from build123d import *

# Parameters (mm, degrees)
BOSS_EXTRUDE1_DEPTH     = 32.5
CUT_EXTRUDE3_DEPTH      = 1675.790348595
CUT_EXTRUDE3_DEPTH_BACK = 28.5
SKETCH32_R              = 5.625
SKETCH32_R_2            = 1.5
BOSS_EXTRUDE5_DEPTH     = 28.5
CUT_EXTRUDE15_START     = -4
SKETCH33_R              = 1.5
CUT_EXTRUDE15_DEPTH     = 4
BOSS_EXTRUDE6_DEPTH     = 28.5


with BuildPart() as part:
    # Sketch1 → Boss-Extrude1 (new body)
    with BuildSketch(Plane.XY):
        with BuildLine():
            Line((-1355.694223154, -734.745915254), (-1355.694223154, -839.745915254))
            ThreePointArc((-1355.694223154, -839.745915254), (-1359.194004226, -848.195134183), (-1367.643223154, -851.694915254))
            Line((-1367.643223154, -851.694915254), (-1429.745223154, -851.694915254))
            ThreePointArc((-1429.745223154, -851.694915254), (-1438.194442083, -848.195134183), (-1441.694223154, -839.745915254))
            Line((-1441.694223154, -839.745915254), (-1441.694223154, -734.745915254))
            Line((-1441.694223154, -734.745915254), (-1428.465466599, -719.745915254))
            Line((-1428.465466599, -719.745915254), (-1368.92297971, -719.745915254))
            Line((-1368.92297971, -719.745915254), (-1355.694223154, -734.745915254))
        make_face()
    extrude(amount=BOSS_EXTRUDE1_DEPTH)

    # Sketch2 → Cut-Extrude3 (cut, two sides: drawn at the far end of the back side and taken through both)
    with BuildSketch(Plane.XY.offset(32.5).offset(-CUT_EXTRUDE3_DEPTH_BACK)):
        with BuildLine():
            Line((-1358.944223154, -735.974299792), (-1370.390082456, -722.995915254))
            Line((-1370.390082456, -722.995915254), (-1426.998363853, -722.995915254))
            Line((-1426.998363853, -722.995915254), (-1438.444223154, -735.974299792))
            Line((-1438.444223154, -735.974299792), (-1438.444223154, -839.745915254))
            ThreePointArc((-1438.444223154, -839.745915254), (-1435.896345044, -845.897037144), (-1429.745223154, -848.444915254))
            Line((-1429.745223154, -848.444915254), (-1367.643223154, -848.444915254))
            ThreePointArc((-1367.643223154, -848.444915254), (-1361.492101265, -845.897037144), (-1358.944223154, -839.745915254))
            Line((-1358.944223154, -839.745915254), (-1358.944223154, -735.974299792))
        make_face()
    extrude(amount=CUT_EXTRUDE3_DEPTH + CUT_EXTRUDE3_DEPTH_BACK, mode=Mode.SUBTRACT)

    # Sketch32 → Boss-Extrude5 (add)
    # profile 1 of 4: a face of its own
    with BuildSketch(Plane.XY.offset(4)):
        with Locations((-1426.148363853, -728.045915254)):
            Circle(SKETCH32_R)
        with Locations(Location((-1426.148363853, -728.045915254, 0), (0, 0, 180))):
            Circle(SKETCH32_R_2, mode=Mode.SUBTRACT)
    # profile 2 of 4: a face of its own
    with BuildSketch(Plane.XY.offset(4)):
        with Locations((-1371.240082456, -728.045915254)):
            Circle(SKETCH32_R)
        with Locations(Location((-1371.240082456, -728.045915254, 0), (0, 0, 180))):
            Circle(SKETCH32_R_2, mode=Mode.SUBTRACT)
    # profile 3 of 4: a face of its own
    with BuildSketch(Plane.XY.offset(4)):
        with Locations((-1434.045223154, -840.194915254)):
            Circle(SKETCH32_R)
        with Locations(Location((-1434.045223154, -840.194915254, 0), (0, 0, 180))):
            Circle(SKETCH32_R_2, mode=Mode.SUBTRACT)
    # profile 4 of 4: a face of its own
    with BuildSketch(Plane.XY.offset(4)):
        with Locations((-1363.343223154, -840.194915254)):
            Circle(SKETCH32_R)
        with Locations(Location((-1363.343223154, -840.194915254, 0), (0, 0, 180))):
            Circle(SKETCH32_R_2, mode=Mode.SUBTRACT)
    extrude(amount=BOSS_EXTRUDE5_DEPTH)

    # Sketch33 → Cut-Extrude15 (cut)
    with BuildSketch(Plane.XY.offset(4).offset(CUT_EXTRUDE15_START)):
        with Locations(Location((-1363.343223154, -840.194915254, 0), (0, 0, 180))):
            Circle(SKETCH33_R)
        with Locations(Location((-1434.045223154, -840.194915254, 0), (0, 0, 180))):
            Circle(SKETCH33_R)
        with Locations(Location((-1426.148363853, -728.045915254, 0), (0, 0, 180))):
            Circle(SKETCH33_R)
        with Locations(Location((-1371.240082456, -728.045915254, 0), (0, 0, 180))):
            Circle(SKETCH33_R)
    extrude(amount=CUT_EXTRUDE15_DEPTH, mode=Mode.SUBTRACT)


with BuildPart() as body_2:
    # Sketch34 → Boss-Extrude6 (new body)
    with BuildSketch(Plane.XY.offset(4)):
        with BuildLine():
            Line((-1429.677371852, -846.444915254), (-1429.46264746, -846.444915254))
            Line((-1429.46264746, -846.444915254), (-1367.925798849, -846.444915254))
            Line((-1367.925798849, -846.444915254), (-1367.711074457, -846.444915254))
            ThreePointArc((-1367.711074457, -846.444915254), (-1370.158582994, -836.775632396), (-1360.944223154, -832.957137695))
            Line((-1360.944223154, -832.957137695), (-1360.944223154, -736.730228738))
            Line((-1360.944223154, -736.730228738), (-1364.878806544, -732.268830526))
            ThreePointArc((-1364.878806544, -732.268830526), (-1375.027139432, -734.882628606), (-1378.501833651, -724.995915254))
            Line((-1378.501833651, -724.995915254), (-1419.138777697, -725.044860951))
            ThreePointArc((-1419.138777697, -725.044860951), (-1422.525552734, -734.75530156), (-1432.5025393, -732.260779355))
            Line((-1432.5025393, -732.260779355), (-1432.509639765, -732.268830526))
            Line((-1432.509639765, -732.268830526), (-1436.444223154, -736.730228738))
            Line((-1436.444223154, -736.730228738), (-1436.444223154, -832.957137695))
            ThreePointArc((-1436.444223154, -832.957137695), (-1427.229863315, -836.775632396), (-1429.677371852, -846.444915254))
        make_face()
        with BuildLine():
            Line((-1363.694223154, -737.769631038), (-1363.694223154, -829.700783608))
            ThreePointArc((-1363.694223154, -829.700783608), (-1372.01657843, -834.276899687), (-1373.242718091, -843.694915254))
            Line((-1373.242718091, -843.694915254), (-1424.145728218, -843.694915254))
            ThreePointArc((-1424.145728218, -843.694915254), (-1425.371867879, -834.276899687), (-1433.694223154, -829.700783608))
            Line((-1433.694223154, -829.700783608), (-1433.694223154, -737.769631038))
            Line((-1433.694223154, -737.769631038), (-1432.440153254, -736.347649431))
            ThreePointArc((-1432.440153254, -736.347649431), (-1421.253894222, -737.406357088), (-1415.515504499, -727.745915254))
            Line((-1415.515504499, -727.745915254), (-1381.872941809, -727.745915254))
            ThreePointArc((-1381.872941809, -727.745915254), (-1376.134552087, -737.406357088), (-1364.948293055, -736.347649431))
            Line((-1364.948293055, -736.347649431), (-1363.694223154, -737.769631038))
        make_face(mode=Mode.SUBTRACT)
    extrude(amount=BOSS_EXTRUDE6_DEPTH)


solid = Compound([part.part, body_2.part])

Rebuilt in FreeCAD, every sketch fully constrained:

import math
import FreeCAD as App
import Part
import Sketcher
from FreeCAD import Vector
Q = App.Units.Quantity

doc = App.newDocument("Part")
body = doc.addObject("PartDesign::Body", "Body")

# Sketch on XY plane
sketch1 = body.newObject("Sketcher::SketchObject", "Sketch")
sketch1.AttachmentSupport = (doc.getObject("XY_Plane"), [""])
sketch1.MapMode = "FlatFace"
sketch1.addGeometry(Part.LineSegment(Vector(-1355.694223, -839.745915, 0), Vector(-1355.694223, -734.745915, 0)), False)
sketch1.addGeometry(Part.LineSegment(Vector(-1355.694223, -734.745915, 0), Vector(-1368.92298, -719.745915, 0)), False)
sketch1.addGeometry(Part.LineSegment(Vector(-1368.92298, -719.745915, 0), Vector(-1428.465467, -719.745915, 0)), False)
sketch1.addGeometry(Part.LineSegment(Vector(-1428.465467, -719.745915, 0), Vector(-1441.694223, -734.745915, 0)), False)
sketch1.addGeometry(Part.LineSegment(Vector(-1441.694223, -734.745915, 0), Vector(-1441.694223, -839.745915, 0)), False)
sketch1.addGeometry(Part.ArcOfCircle(Part.Circle(Vector(-1429.745223, -839.745915, 0), Vector(0, 0, 1), 11.949), math.radians(180), math.radians(270)), False)
sketch1.addGeometry(Part.LineSegment(Vector(-1429.745223, -851.694915, 0), Vector(-1367.643223, -851.694915, 0)), False)
sketch1.addGeometry(Part.ArcOfCircle(Part.Circle(Vector(-1367.643223, -839.745915, 0), Vector(0, 0, 1), 11.949), math.radians(-90), math.radians(0)), False)
sketch1.addConstraint(Sketcher.Constraint("Coincident", 0, 2, 1, 1))
sketch1.addConstraint(Sketcher.Constraint("Coincident", 1, 2, 2, 1))
sketch1.addConstraint(Sketcher.Constraint("Coincident", 2, 2, 3, 1))
sketch1.addConstraint(Sketcher.Constraint("Coincident", 3, 2, 4, 1))
sketch1.addConstraint(Sketcher.Constraint("Tangent", 4, 2, 5, 1))
sketch1.addConstraint(Sketcher.Constraint("Tangent", 5, 2, 6, 1))
sketch1.addConstraint(Sketcher.Constraint("Tangent", 6, 2, 7, 1))
sketch1.addConstraint(Sketcher.Constraint("Tangent", 7, 2, 0, 1))
sketch1.addConstraint(Sketcher.Constraint("Vertical", 0))
sketch1.addConstraint(Sketcher.Constraint("Horizontal", 2))
sketch1.addConstraint(Sketcher.Constraint("Vertical", 4))
sketch1.addConstraint(Sketcher.Constraint("Horizontal", 6))
sketch1.addConstraint(Sketcher.Constraint("Equal", 5, 7))
sketch1.addConstraint(Sketcher.Constraint("Horizontal", 0, 2, 3, 2))
sketch1.addConstraint(Sketcher.Constraint("Equal", 1, 3))
sketch1.addConstraint(Sketcher.Constraint("DistanceY", 0, 1, 0, 2, Q("105 mm")))
sketch1.addConstraint(Sketcher.Constraint("Distance", 1, Q("20 mm")))
sketch1.addConstraint(Sketcher.Constraint("Radius", 5, Q("11.949 mm")))
sketch1.addConstraint(Sketcher.Constraint("DistanceY", 0, 2, 1, 2, Q("15 mm")))
sketch1.addConstraint(Sketcher.Constraint("DistanceX", 3, 2, 0, 2, Q("86 mm")))
sketch1.addConstraint(Sketcher.Constraint("DistanceX", 1, 2, -1, 1, Q("1368.92298 mm")))
sketch1.addConstraint(Sketcher.Constraint("DistanceY", 5, 3, -1, 1, Q("839.745915 mm")))
pad1 = body.newObject("PartDesign::Pad", "Pad")
pad1.Profile = sketch1
pad1.Length = 32.5

# Sketch on XY plane
sketch2 = body.newObject("Sketcher::SketchObject", "Sketch001")
sketch2.AttachmentSupport = (doc.getObject("XY_Plane"), [""])
sketch2.MapMode = "FlatFace"
sketch2.AttachmentOffset = App.Placement(Vector(0, 0, 32.5), App.Rotation())
sketch2.addGeometry(Part.LineSegment(Vector(-1358.944223, -735.9743, 0), Vector(-1370.390082, -722.995915, 0)), False)
sketch2.addGeometry(Part.LineSegment(Vector(-1370.390082, -722.995915, 0), Vector(-1426.998364, -722.995915, 0)), False)
sketch2.addGeometry(Part.LineSegment(Vector(-1426.998364, -722.995915, 0), Vector(-1438.444223, -735.9743, 0)), False)
sketch2.addGeometry(Part.LineSegment(Vector(-1438.444223, -735.9743, 0), Vector(-1438.444223, -839.745915, 0)), False)
sketch2.addGeometry(Part.ArcOfCircle(Part.Circle(Vector(-1429.745223, -839.745915, 0), Vector(0, 0, 1), 8.699), math.radians(180), math.radians(270)), False)
sketch2.addGeometry(Part.LineSegment(Vector(-1429.745223, -848.444915, 0), Vector(-1367.643223, -848.444915, 0)), False)
sketch2.addGeometry(Part.ArcOfCircle(Part.Circle(Vector(-1367.643223, -839.745915, 0), Vector(0, 0, 1), 8.699), math.radians(-90), math.radians(0)), False)
sketch2.addGeometry(Part.LineSegment(Vector(-1358.944223, -839.745915, 0), Vector(-1358.944223, -735.9743, 0)), False)
sketch2.addConstraint(Sketcher.Constraint("Coincident", 0, 2, 1, 1))
sketch2.addConstraint(Sketcher.Constraint("Coincident", 1, 2, 2, 1))
sketch2.addConstraint(Sketcher.Constraint("Coincident", 2, 2, 3, 1))
sketch2.addConstraint(Sketcher.Constraint("Tangent", 3, 2, 4, 1))
sketch2.addConstraint(Sketcher.Constraint("Tangent", 4, 2, 5, 1))
sketch2.addConstraint(Sketcher.Constraint("Tangent", 5, 2, 6, 1))
sketch2.addConstraint(Sketcher.Constraint("Tangent", 6, 2, 7, 1))
sketch2.addConstraint(Sketcher.Constraint("Coincident", 7, 2, 0, 1))
sketch2.addConstraint(Sketcher.Constraint("Horizontal", 1))
sketch2.addConstraint(Sketcher.Constraint("Vertical", 3))
sketch2.addConstraint(Sketcher.Constraint("Horizontal", 5))
sketch2.addConstraint(Sketcher.Constraint("Vertical", 7))
sketch2.addConstraint(Sketcher.Constraint("Equal", 4, 6))
sketch2.addConstraint(Sketcher.Constraint("Horizontal", 2, 2, 7, 2))
sketch2.addConstraint(Sketcher.Constraint("Equal", 0, 2))
sketch2.addConstraint(Sketcher.Constraint("Radius", 4, Q("8.699 mm")))
sketch2.addConstraint(Sketcher.Constraint("DistanceX", 3, 2, 6, 2, Q("79.5 mm")))
sketch2.addConstraint(Sketcher.Constraint("DistanceY", 6, 3, 0, 2, Q("116.75 mm")))
sketch2.addConstraint(Sketcher.Constraint("DistanceX", 1, 2, 1, 1, Q("56.608281 mm")))
sketch2.addConstraint(Sketcher.Constraint("DistanceY", 2, 2, -1, 1, Q("735.9743 mm")))
sketch2.addConstraint(Sketcher.Constraint("DistanceY", 3, 2, 3, 1, Q("103.771615 mm")))
sketch2.addConstraint(Sketcher.Constraint("DistanceX", 4, 3, -1, 1, Q("1429.745223 mm")))
pocket1 = body.newObject("PartDesign::Pocket", "Pocket")
pocket1.Profile = sketch2
pocket1.Type = "TwoLengths"
pocket1.Length = 1675.790349
pocket1.Length2 = 28.5
pocket1.Reversed = True

# Sketch on XY plane
sketch3 = body.newObject("Sketcher::SketchObject", "Sketch002")
sketch3.AttachmentSupport = (doc.getObject("XY_Plane"), [""])
sketch3.MapMode = "FlatFace"
sketch3.AttachmentOffset = App.Placement(Vector(0, 0, 4), App.Rotation())
sketch3.addGeometry(Part.Circle(Vector(-1426.148364, -728.045915, 0), Vector(0, 0, 1), 5.625), False)
sketch3.addGeometry(Part.Circle(Vector(-1426.148364, -728.045915, 0), Vector(0, 0, 1), 1.5), False)
sketch3.addGeometry(Part.Circle(Vector(-1371.240082, -728.045915, 0), Vector(0, 0, 1), 5.625), False)
sketch3.addGeometry(Part.Circle(Vector(-1371.240082, -728.045915, 0), Vector(0, 0, 1), 1.5), False)
sketch3.addGeometry(Part.Circle(Vector(-1434.045223, -840.194915, 0), Vector(0, 0, 1), 5.625), False)
sketch3.addGeometry(Part.Circle(Vector(-1434.045223, -840.194915, 0), Vector(0, 0, 1), 1.5), False)
sketch3.addGeometry(Part.Circle(Vector(-1363.343223, -840.194915, 0), Vector(0, 0, 1), 5.625), False)
sketch3.addGeometry(Part.Circle(Vector(-1363.343223, -840.194915, 0), Vector(0, 0, 1), 1.5), False)
sketch3.addConstraint(Sketcher.Constraint("Coincident", 1, 3, 0, 3))
sketch3.addConstraint(Sketcher.Constraint("Coincident", 3, 3, 2, 3))
sketch3.addConstraint(Sketcher.Constraint("Coincident", 5, 3, 4, 3))
sketch3.addConstraint(Sketcher.Constraint("Coincident", 7, 3, 6, 3))
sketch3.addConstraint(Sketcher.Constraint("Equal", 0, 2))
sketch3.addConstraint(Sketcher.Constraint("Equal", 1, 3))
sketch3.addConstraint(Sketcher.Constraint("Equal", 2, 4))
sketch3.addConstraint(Sketcher.Constraint("Equal", 3, 5))
sketch3.addConstraint(Sketcher.Constraint("Equal", 4, 6))
sketch3.addConstraint(Sketcher.Constraint("Equal", 5, 7))
sketch3.addConstraint(Sketcher.Constraint("Horizontal", 1, 3, 2, 3))
sketch3.addConstraint(Sketcher.Constraint("Horizontal", 5, 3, 6, 3))
sketch3.addConstraint(Sketcher.Constraint("Diameter", 1, Q("3 mm")))
sketch3.addConstraint(Sketcher.Constraint("Diameter", 0, Q("11.25 mm")))
sketch3.addConstraint(Sketcher.Constraint("DistanceY", 4, 3, 0, 3, Q("112.149 mm")))
sketch3.addConstraint(Sketcher.Constraint("DistanceX", 4, 3, 6, 3, Q("70.702 mm")))
sketch3.addConstraint(Sketcher.Constraint("DistanceX", 0, 3, 2, 3, Q("54.908281 mm")))
sketch3.addConstraint(Sketcher.Constraint("DistanceX", 4, 3, 0, 3, Q("7.896859 mm")))
sketch3.addConstraint(Sketcher.Constraint("DistanceX", 0, 3, -1, 1, Q("1426.148364 mm")))
sketch3.addConstraint(Sketcher.Constraint("DistanceY", 0, 3, -1, 1, Q("728.045915 mm")))
pad2 = body.newObject("PartDesign::Pad", "Pad001")
pad2.Profile = sketch3
pad2.Length = 28.5

# Sketch on XY plane
sketch4 = body.newObject("Sketcher::SketchObject", "Sketch003")
sketch4.AttachmentSupport = (doc.getObject("XY_Plane"), [""])
sketch4.MapMode = "FlatFace"
sketch4.addGeometry(Part.Circle(Vector(-1363.343223, -840.194915, 0), Vector(0, 0, 1), 1.5), False)
sketch4.addGeometry(Part.Circle(Vector(-1434.045223, -840.194915, 0), Vector(0, 0, 1), 1.5), False)
sketch4.addGeometry(Part.Circle(Vector(-1426.148364, -728.045915, 0), Vector(0, 0, 1), 1.5), False)
sketch4.addGeometry(Part.Circle(Vector(-1371.240082, -728.045915, 0), Vector(0, 0, 1), 1.5), False)
sketch4.addConstraint(Sketcher.Constraint("Equal", 0, 1))
sketch4.addConstraint(Sketcher.Constraint("Equal", 1, 2))
sketch4.addConstraint(Sketcher.Constraint("Equal", 2, 3))
sketch4.addConstraint(Sketcher.Constraint("Horizontal", 0, 3, 1, 3))
sketch4.addConstraint(Sketcher.Constraint("Horizontal", 2, 3, 3, 3))
sketch4.addConstraint(Sketcher.Constraint("Diameter", 0, Q("3 mm")))
sketch4.addConstraint(Sketcher.Constraint("DistanceX", 1, 3, 0, 3, Q("70.702 mm")))
sketch4.addConstraint(Sketcher.Constraint("DistanceY", 1, 3, 2, 3, Q("112.149 mm")))
sketch4.addConstraint(Sketcher.Constraint("DistanceX", 1, 3, 2, 3, Q("7.896859 mm")))
sketch4.addConstraint(Sketcher.Constraint("DistanceX", 2, 3, 3, 3, Q("54.908281 mm")))
sketch4.addConstraint(Sketcher.Constraint("DistanceX", 0, 3, -1, 1, Q("1363.343223 mm")))
sketch4.addConstraint(Sketcher.Constraint("DistanceY", 0, 3, -1, 1, Q("840.194915 mm")))
pocket2 = body.newObject("PartDesign::Pocket", "Pocket001")
pocket2.Profile = sketch4
pocket2.Length = 4
pocket2.Reversed = True
body2 = doc.addObject("PartDesign::Body", "Body001")

# Sketch on XY plane
sketch5 = body2.newObject("Sketcher::SketchObject", "Sketch004")
sketch5.AttachmentSupport = (doc.getObject("XY_Plane001"), [""])
sketch5.MapMode = "FlatFace"
sketch5.AttachmentOffset = App.Placement(Vector(0, 0, 4), App.Rotation())
sketch5.addGeometry(Part.LineSegment(Vector(-1429.677372, -846.444915, 0), Vector(-1367.711074, -846.444915, 0)), False)
sketch5.addGeometry(Part.ArcOfCircle(Part.Circle(Vector(-1363.343223, -840.194915, 0), Vector(0, 0, 1), 7.625), math.radians(71.661947), math.radians(235.051986)), False)
sketch5.addGeometry(Part.LineSegment(Vector(-1360.944223, -832.957138, 0), Vector(-1360.944223, -736.730229, 0)), False)
sketch5.addGeometry(Part.LineSegment(Vector(-1360.944223, -736.730229, 0), Vector(-1364.878807, -732.268831, 0)), False)
sketch5.addGeometry(Part.ArcOfCircle(Part.Circle(Vector(-1371.377228, -728.045915, 0), Vector(0, 0, 1), 7.75), math.radians(156.824529), math.radians(326.982696)), False)
sketch5.addGeometry(Part.LineSegment(Vector(-1378.501834, -724.995915, 0), Vector(-1419.138778, -725.044861, 0)), False)
sketch5.addGeometry(Part.ArcOfCircle(Part.Circle(Vector(-1426.148364, -728.045915, 0), Vector(0, 0, 1), 7.625), math.radians(-146.44281), math.radians(23.177497)), False)
sketch5.addGeometry(Part.LineSegment(Vector(-1432.502539, -732.260779, 0), Vector(-1432.50964, -732.268831, 0)), False)
sketch5.addGeometry(Part.LineSegment(Vector(-1432.50964, -732.268831, 0), Vector(-1436.444223, -736.730229, 0)), False)
sketch5.addGeometry(Part.LineSegment(Vector(-1436.444223, -736.730229, 0), Vector(-1436.444223, -832.957138, 0)), False)
sketch5.addGeometry(Part.ArcOfCircle(Part.Circle(Vector(-1434.045223, -840.194915, 0), Vector(0, 0, 1), 7.625), math.radians(-55.051986), math.radians(108.338053)), False)
sketch5.addGeometry(Part.LineSegment(Vector(-1364.948293, -736.347649, 0), Vector(-1363.694223, -737.769631, 0)), False)
sketch5.addGeometry(Part.LineSegment(Vector(-1363.694223, -737.769631, 0), Vector(-1363.694223, -829.700784, 0)), False)
sketch5.addGeometry(Part.ArcOfCircle(Part.Circle(Vector(-1363.343223, -840.194915, 0), Vector(0, 0, 1), 10.5), math.radians(91.915673), math.radians(199.471221)), False)
sketch5.addGeometry(Part.LineSegment(Vector(-1373.242718, -843.694915, 0), Vector(-1424.145728, -843.694915, 0)), False)
sketch5.addGeometry(Part.ArcOfCircle(Part.Circle(Vector(-1434.045223, -840.194915, 0), Vector(0, 0, 1), 10.5), math.radians(-19.471221), math.radians(88.084327)), False)
sketch5.addGeometry(Part.LineSegment(Vector(-1433.694223, -829.700784, 0), Vector(-1433.694223, -737.769631, 0)), False)
sketch5.addGeometry(Part.LineSegment(Vector(-1433.694223, -737.769631, 0), Vector(-1432.440153, -736.347649, 0)), False)
sketch5.addGeometry(Part.ArcOfCircle(Part.Circle(Vector(-1426.011218, -728.045915, 0), Vector(0, 0, 1), 10.5), math.radians(-127.754513), math.radians(1.637245)), False)
sketch5.addGeometry(Part.LineSegment(Vector(-1415.515504, -727.745915, 0), Vector(-1381.872942, -727.745915, 0)), False)
sketch5.addGeometry(Part.ArcOfCircle(Part.Circle(Vector(-1371.377228, -728.045915, 0), Vector(0, 0, 1), 10.5), math.radians(178.362755), math.radians(307.754513)), False)
sketch5.addConstraint(Sketcher.Constraint("Coincident", 0, 2, 1, 2))
sketch5.addConstraint(Sketcher.Constraint("Coincident", 1, 1, 2, 1))
sketch5.addConstraint(Sketcher.Constraint("Coincident", 2, 2, 3, 1))
sketch5.addConstraint(Sketcher.Constraint("Coincident", 3, 2, 4, 2))
sketch5.addConstraint(Sketcher.Constraint("Coincident", 4, 1, 5, 1))
sketch5.addConstraint(Sketcher.Constraint("Coincident", 5, 2, 6, 2))
sketch5.addConstraint(Sketcher.Constraint("Coincident", 6, 1, 7, 1))
sketch5.addConstraint(Sketcher.Constraint("Coincident", 7, 2, 8, 1))
sketch5.addConstraint(Sketcher.Constraint("Coincident", 8, 2, 9, 1))
sketch5.addConstraint(Sketcher.Constraint("Coincident", 9, 2, 10, 2))
sketch5.addConstraint(Sketcher.Constraint("Coincident", 10, 1, 0, 1))
sketch5.addConstraint(Sketcher.Constraint("Coincident", 11, 2, 12, 1))
sketch5.addConstraint(Sketcher.Constraint("Coincident", 12, 2, 13, 1))
sketch5.addConstraint(Sketcher.Constraint("Coincident", 13, 2, 14, 1))
sketch5.addConstraint(Sketcher.Constraint("Coincident", 14, 2, 15, 1))
sketch5.addConstraint(Sketcher.Constraint("Coincident", 15, 2, 16, 1))
sketch5.addConstraint(Sketcher.Constraint("Coincident", 16, 2, 17, 1))
sketch5.addConstraint(Sketcher.Constraint("Coincident", 17, 2, 18, 1))
sketch5.addConstraint(Sketcher.Constraint("Coincident", 18, 2, 19, 1))
sketch5.addConstraint(Sketcher.Constraint("Coincident", 19, 2, 20, 1))
sketch5.addConstraint(Sketcher.Constraint("Coincident", 20, 2, 11, 1))
sketch5.addConstraint(Sketcher.Constraint("Horizontal", 0))
sketch5.addConstraint(Sketcher.Constraint("Vertical", 2))
sketch5.addConstraint(Sketcher.Constraint("Vertical", 9))
sketch5.addConstraint(Sketcher.Constraint("Vertical", 12))
sketch5.addConstraint(Sketcher.Constraint("Horizontal", 14))
sketch5.addConstraint(Sketcher.Constraint("Vertical", 16))
sketch5.addConstraint(Sketcher.Constraint("Horizontal", 19))
sketch5.addConstraint(Sketcher.Constraint("Coincident", 13, 3, 1, 3))
sketch5.addConstraint(Sketcher.Constraint("Coincident", 15, 3, 10, 3))
sketch5.addConstraint(Sketcher.Constraint("Coincident", 20, 3, 4, 3))
sketch5.addConstraint(Sketcher.Constraint("Equal", 1, 6))
sketch5.addConstraint(Sketcher.Constraint("Equal", 6, 10))
sketch5.addConstraint(Sketcher.Constraint("Equal", 13, 15))
sketch5.addConstraint(Sketcher.Constraint("Equal", 15, 18))
sketch5.addConstraint(Sketcher.Constraint("Equal", 18, 20))
sketch5.addConstraint(Sketcher.Constraint("Parallel", 7, 8))
sketch5.addConstraint(Sketcher.Constraint("Parallel", 3, 11))
sketch5.addConstraint(Sketcher.Constraint("Parallel", 8, 17))
sketch5.addConstraint(Sketcher.Constraint("Horizontal", 4, 3, 6, 3))
sketch5.addConstraint(Sketcher.Constraint("Horizontal", 1, 3, 10, 3))
sketch5.addConstraint(Sketcher.Constraint("Horizontal", 6, 3, 18, 3))
sketch5.addConstraint(Sketcher.Constraint("Horizontal", 3, 2, 7, 2))
sketch5.addConstraint(Sketcher.Constraint("Horizontal", 2, 2, 8, 2))
sketch5.addConstraint(Sketcher.Constraint("Horizontal", 1, 1, 9, 2))
sketch5.addConstraint(Sketcher.Constraint("Horizontal", 12, 2, 15, 2))
sketch5.addConstraint(Sketcher.Constraint("Horizontal", 11, 2, 16, 2))
sketch5.addConstraint(Sketcher.Constraint("Horizontal", 17, 2, 20, 2))
sketch5.addConstraint(Sketcher.Constraint("Equal", 3, 8))
sketch5.addConstraint(Sketcher.Constraint("Radius", 13, Q("10.5 mm")))
sketch5.addConstraint(Sketcher.Constraint("Radius", 4, Q("7.75 mm")))
sketch5.addConstraint(Sketcher.Constraint("Radius", 1, Q("7.625 mm")))
sketch5.addConstraint(Sketcher.Constraint("DistanceY", 13, 2, 1, 3, Q("3.5 mm")))
sketch5.addConstraint(Sketcher.Constraint("DistanceY", 18, 3, 18, 2, Q("0.3 mm")))
sketch5.addConstraint(Sketcher.Constraint("DistanceY", 0, 2, 1, 3, Q("6.25 mm")))
sketch5.addConstraint(Sketcher.Constraint("DistanceY", 4, 3, 4, 1, Q("3.05 mm")))
sketch5.addConstraint(Sketcher.Constraint("DistanceX", 11, 2, 2, 2, Q("2.75 mm")))
sketch5.addConstraint(Sketcher.Constraint("DistanceY", 1, 3, 4, 3, Q("112.149 mm")))
sketch5.addConstraint(Sketcher.Constraint("DistanceX", 10, 3, 1, 3, Q("70.702 mm")))
sketch5.addConstraint(Sketcher.Constraint("DistanceX", 1, 3, 1, 1, Q("2.399 mm")))
sketch5.addConstraint(Sketcher.Constraint("DistanceY", 2, 1, 2, 2, Q("96.226909 mm")))
sketch5.addConstraint(Sketcher.Constraint("DistanceY", 2, 2, 3, 2, Q("4.461398 mm")))
sketch5.addConstraint(Sketcher.Constraint("DistanceX", 7, 2, 6, 1, Q("0.0071 mm")))
sketch5.addConstraint(Sketcher.Constraint("DistanceY", 11, 2, 3, 2, Q("5.500801 mm")))
sketch5.addConstraint(Sketcher.Constraint("Distance", 3, Q("5.948531 mm")))
sketch5.addConstraint(Sketcher.Constraint("DistanceX", 4, 3, -1, 1, Q("1371.377228 mm")))
sketch5.addConstraint(Sketcher.Constraint("DistanceY", 2, 2, -1, 1, Q("736.730229 mm")))
sketch5.addConstraint(Sketcher.Constraint("DistanceY", 5, 2, -1, 1, Q("725.044861 mm")))
pad3 = body2.newObject("PartDesign::Pad", "Pad002")
pad3.Profile = sketch5
pad3.Length = 28.5

doc.recompute()
